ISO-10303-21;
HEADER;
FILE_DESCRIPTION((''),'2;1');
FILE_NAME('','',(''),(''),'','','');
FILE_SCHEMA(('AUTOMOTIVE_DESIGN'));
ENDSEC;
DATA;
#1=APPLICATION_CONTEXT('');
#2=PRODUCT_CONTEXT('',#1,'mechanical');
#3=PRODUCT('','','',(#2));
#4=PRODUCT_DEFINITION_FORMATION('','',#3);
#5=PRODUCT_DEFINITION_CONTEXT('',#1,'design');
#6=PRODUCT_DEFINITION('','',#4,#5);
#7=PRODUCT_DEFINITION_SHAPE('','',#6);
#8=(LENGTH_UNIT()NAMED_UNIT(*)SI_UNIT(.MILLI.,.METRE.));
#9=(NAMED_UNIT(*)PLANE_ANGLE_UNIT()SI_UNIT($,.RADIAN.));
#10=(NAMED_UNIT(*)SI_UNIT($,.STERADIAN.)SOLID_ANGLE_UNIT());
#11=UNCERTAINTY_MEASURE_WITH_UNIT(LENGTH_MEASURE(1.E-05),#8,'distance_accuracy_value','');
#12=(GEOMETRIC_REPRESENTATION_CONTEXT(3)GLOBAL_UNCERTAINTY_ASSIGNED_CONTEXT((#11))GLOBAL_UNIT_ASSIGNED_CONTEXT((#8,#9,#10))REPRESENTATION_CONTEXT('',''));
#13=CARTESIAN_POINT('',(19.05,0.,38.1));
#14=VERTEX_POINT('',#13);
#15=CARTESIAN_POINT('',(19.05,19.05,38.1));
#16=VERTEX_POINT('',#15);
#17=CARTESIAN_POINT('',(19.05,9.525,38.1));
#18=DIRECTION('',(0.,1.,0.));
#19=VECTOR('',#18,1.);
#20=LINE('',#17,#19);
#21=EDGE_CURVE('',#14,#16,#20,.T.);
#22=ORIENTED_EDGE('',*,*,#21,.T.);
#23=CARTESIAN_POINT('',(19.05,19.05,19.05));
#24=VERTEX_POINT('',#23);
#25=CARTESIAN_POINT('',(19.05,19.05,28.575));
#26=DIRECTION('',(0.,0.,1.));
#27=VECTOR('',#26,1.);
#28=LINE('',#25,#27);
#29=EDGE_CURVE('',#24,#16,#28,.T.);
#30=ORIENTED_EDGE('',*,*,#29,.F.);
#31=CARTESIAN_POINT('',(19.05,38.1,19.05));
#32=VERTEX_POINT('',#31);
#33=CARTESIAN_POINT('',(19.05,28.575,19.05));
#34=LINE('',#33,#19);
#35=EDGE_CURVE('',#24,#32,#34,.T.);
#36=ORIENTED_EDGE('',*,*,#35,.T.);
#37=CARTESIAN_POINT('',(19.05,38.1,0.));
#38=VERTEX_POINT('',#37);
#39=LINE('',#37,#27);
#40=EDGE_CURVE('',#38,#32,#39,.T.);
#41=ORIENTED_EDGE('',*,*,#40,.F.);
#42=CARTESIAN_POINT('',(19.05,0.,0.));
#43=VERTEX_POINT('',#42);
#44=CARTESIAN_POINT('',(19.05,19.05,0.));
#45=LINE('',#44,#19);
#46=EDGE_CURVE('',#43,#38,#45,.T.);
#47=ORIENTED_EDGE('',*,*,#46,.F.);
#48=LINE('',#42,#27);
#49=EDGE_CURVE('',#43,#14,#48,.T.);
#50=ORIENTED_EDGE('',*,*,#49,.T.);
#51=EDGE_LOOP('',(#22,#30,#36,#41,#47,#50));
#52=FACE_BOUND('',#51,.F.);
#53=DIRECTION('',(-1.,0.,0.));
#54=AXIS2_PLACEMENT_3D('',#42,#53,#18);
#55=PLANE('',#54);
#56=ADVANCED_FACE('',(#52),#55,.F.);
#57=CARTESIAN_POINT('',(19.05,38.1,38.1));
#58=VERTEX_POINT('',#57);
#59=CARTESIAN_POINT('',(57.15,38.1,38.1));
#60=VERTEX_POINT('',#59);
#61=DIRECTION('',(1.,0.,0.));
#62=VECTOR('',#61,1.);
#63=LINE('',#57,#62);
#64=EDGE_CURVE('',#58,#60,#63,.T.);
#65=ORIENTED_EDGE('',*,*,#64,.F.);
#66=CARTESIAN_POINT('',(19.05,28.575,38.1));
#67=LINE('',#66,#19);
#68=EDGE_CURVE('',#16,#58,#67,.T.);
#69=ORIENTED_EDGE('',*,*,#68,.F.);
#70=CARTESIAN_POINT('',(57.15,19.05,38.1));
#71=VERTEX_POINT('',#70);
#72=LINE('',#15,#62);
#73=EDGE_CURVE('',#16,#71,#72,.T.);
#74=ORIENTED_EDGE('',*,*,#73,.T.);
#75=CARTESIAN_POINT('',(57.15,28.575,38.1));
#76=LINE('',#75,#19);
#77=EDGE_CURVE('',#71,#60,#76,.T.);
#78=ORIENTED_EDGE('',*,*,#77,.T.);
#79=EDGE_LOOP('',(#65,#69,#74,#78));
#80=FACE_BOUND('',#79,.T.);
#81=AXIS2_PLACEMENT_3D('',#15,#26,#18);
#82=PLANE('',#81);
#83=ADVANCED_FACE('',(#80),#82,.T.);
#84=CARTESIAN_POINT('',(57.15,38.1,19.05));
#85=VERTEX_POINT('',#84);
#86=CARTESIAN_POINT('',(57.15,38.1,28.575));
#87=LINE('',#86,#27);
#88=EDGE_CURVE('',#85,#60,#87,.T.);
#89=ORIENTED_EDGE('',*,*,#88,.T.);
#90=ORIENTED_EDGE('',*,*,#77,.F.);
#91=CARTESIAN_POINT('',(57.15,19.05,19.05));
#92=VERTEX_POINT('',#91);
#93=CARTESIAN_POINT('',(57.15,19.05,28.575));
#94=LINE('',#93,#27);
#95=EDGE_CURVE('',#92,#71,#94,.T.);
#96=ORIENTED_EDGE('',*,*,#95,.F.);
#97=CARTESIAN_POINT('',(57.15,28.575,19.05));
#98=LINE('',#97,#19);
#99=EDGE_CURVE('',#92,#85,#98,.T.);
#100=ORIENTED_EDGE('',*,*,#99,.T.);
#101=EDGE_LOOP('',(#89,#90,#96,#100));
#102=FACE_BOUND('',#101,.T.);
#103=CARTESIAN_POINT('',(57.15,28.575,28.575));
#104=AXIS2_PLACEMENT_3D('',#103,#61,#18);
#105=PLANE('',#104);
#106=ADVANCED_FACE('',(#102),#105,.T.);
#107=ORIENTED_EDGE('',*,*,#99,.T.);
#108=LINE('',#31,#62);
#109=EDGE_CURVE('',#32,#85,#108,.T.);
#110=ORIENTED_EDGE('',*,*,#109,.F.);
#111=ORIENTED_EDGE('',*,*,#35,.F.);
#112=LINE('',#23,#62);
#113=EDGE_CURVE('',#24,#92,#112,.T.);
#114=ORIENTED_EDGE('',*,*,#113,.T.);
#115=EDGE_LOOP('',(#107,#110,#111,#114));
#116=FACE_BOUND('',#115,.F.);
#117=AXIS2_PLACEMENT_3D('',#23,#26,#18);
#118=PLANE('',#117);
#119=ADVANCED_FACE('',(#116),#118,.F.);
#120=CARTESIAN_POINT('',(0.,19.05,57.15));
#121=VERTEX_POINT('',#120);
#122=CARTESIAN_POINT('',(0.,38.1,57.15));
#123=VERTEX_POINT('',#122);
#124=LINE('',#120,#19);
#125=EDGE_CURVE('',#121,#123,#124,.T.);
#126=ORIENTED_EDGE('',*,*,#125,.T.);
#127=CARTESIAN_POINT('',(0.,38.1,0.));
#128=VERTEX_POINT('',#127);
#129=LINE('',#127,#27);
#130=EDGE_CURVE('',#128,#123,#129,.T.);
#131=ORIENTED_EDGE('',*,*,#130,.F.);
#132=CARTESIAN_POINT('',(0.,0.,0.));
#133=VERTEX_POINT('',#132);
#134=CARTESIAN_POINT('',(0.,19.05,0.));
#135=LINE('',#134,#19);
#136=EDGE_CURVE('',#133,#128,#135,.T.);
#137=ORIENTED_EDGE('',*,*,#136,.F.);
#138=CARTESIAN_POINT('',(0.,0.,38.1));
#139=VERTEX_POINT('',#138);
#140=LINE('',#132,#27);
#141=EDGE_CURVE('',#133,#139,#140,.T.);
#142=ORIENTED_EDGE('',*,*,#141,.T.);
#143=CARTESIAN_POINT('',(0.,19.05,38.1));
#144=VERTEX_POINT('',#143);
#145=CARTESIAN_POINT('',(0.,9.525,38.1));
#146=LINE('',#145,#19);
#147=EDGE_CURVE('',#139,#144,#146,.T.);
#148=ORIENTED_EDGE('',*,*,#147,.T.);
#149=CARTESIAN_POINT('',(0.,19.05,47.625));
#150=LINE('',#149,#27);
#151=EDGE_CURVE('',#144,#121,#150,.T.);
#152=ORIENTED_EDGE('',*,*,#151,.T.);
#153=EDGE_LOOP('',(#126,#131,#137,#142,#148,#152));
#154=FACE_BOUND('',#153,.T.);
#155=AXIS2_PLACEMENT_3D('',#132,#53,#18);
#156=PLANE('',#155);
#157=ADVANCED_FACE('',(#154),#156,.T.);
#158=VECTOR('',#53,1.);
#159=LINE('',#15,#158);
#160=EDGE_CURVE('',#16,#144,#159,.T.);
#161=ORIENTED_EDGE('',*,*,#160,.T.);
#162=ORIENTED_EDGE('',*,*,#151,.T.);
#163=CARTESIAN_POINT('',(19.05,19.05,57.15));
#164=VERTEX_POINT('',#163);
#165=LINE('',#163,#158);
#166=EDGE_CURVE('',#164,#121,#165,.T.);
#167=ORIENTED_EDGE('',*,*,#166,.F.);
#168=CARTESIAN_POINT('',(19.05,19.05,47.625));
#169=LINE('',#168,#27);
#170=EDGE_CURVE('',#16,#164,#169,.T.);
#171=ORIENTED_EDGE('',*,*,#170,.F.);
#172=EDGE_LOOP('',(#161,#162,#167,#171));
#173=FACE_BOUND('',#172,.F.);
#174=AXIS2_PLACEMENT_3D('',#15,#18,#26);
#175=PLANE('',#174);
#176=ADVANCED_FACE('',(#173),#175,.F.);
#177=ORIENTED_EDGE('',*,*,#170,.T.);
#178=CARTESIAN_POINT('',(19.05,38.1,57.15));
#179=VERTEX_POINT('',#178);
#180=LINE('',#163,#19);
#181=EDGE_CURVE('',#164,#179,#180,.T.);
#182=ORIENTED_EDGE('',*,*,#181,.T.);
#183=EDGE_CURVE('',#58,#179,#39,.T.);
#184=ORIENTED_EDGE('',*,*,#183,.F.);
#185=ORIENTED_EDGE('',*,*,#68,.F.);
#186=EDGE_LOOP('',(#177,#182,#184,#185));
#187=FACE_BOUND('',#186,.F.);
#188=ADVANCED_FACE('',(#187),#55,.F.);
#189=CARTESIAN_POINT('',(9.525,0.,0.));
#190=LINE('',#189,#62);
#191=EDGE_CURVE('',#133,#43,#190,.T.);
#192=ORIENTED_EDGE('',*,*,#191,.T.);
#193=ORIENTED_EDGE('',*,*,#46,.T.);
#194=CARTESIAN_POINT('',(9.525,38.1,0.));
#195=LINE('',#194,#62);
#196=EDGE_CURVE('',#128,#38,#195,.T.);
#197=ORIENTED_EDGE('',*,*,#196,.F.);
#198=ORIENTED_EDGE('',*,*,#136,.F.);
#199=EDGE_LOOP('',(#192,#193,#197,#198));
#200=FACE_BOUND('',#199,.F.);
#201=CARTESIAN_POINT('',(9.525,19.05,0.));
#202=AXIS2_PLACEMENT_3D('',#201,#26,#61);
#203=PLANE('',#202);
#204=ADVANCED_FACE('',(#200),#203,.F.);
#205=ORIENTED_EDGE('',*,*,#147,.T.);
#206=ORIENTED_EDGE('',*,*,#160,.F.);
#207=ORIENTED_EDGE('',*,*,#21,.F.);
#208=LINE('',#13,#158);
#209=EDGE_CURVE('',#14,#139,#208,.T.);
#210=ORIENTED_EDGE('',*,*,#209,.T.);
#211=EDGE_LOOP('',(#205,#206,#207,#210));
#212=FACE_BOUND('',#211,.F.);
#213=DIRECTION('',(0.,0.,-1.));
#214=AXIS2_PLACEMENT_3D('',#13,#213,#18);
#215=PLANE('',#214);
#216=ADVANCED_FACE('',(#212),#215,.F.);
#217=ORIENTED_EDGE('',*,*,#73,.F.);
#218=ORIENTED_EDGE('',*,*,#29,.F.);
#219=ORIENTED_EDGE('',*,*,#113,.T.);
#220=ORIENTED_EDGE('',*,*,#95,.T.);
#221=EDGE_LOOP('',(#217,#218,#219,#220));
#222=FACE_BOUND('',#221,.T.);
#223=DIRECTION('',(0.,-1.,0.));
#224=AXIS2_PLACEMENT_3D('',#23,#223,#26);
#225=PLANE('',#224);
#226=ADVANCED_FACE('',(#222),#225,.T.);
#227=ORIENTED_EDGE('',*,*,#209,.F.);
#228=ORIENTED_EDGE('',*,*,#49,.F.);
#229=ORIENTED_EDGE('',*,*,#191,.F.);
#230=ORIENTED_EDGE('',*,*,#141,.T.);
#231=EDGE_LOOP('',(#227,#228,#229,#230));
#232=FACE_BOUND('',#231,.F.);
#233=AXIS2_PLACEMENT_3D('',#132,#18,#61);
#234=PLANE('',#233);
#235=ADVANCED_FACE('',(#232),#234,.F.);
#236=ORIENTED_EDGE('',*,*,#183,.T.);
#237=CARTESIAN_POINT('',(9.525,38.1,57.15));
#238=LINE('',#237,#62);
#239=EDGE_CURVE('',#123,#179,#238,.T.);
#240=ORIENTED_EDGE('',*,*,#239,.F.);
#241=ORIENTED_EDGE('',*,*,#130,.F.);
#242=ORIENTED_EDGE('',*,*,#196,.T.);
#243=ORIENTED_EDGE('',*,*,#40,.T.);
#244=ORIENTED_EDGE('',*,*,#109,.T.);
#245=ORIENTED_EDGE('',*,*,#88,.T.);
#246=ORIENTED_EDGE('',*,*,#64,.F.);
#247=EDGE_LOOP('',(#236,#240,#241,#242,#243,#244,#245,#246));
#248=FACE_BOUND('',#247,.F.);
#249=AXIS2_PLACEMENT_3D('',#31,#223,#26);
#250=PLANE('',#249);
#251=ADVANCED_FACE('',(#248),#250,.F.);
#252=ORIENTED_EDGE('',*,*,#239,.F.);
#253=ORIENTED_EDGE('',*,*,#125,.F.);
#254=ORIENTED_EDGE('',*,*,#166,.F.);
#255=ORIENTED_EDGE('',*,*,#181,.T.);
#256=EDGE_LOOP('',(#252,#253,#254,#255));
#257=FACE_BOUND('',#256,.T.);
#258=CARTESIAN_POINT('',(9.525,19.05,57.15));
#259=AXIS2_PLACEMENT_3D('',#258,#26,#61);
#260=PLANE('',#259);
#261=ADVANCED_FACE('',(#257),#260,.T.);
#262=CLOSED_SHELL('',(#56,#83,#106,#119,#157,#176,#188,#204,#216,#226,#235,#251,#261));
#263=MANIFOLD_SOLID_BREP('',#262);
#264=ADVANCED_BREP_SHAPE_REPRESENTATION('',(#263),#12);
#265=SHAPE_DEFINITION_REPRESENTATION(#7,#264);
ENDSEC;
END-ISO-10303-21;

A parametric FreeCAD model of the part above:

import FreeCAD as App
import Part
import Sketcher
Q = App.Units.Quantity

doc = App.newDocument("Part")
body = doc.addObject("PartDesign::Body", "Body")

# Sketch on XY plane
sketch1 = doc.addObject("Sketcher::SketchObject", "Sketch")
body.addObject(sketch1)
sketch1.AttachmentSupport = (doc.XY_Plane, [""])
sketch1.MapMode = "FlatFace"
sketch1.addGeometry(Part.LineSegment(App.Vector(0, 38, 0), App.Vector(0, 0, 0)), False)
sketch1.addGeometry(Part.LineSegment(App.Vector(0, 0, 0), App.Vector(19, 0, 0)), False)
sketch1.addGeometry(Part.LineSegment(App.Vector(19, 0, 0), App.Vector(19, 38, 0)), False)
sketch1.addGeometry(Part.LineSegment(App.Vector(19, 38, 0), App.Vector(0, 38, 0)), False)
sketch1.addConstraint(Sketcher.Constraint("Coincident", 0, 2, 1, 1))
sketch1.addConstraint(Sketcher.Constraint("Coincident", 1, 2, 2, 1))
sketch1.addConstraint(Sketcher.Constraint("Coincident", 2, 2, 3, 1))
sketch1.addConstraint(Sketcher.Constraint("Coincident", 3, 2, 0, 1))
sketch1.addConstraint(Sketcher.Constraint("Vertical", 0))
sketch1.addConstraint(Sketcher.Constraint("Horizontal", 1))
sketch1.addConstraint(Sketcher.Constraint("Vertical", 2))
sketch1.addConstraint(Sketcher.Constraint("Horizontal", 3))
sketch1.addConstraint(Sketcher.Constraint("Coincident", 0, 2, -1, 1))
sketch1.addConstraint(Sketcher.Constraint("DistanceY", 0, 2, 0, 1, Q("1.5 in")))
sketch1.addConstraint(Sketcher.Constraint("DistanceX", 1, 1, 1, 2, Q("0.75 in")))
pad1 = doc.addObject("PartDesign::Pad", "Pad")
body.addObject(pad1)
pad1.Profile = sketch1
pad1.Length = Q("2.25 in")

# Sketch on YZ plane
sketch2 = doc.addObject("Sketcher::SketchObject", "Sketch001")
body.addObject(sketch2)
sketch2.AttachmentSupport = (doc.YZ_Plane, [""])
sketch2.MapMode = "FlatFace"
sketch2.AttachmentOffset = App.Placement(App.Vector(0, 0, 0.75 * 25.4), App.Rotation())
sketch2.addGeometry(Part.LineSegment(App.Vector(0, 57, 0), App.Vector(0, 38, 0)), False)
sketch2.addGeometry(Part.LineSegment(App.Vector(0, 38, 0), App.Vector(19, 38, 0)), False)
sketch2.addGeometry(Part.LineSegment(App.Vector(19, 38, 0), App.Vector(19, 57, 0)), False)
sketch2.addGeometry(Part.LineSegment(App.Vector(19, 57, 0), App.Vector(0, 57, 0)), False)
sketch2.addConstraint(Sketcher.Constraint("Coincident", 0, 2, 1, 1))
sketch2.addConstraint(Sketcher.Constraint("Coincident", 1, 2, 2, 1))
sketch2.addConstraint(Sketcher.Constraint("Coincident", 2, 2, 3, 1))
sketch2.addConstraint(Sketcher.Constraint("Coincident", 3, 2, 0, 1))
sketch2.addConstraint(Sketcher.Constraint("Vertical", 0))
sketch2.addConstraint(Sketcher.Constraint("Horizontal", 1))
sketch2.addConstraint(Sketcher.Constraint("Vertical", 2))
sketch2.addConstraint(Sketcher.Constraint("Horizontal", 3))
sketch2.addConstraint(Sketcher.Constraint("PointOnObject", 0, 2, -2))
sketch2.addConstraint(Sketcher.Constraint("Equal", 3, 0))
sketch2.addConstraint(Sketcher.Constraint("DistanceX", 1, 1, 1, 2, Q("0.75 in")))
sketch2.addConstraint(Sketcher.Constraint("DistanceY", -1, 1, 0, 2, Q("1.5 in")))
pocket1 = doc.addObject("PartDesign::Pocket", "Pocket")
body.addObject(pocket1)
pocket1.Profile = sketch2
pocket1.Length = Q("0.75 in")

# Sketch on YZ plane
sketch3 = doc.addObject("Sketcher::SketchObject", "Sketch002")
body.addObject(sketch3)
sketch3.AttachmentSupport = (doc.YZ_Plane, [""])
sketch3.MapMode = "FlatFace"
sketch3.AttachmentOffset = App.Placement(App.Vector(0, 0, 0.75 * 25.4), App.Rotation())
sketch3.addGeometry(Part.LineSegment(App.Vector(19, 38, 0), App.Vector(19, 19, 0)), False)
sketch3.addGeometry(Part.LineSegment(App.Vector(19, 19, 0), App.Vector(38, 19, 0)), False)
sketch3.addGeometry(Part.LineSegment(App.Vector(38, 19, 0), App.Vector(38, 38, 0)), False)
sketch3.addGeometry(Part.LineSegment(App.Vector(38, 38, 0), App.Vector(19, 38, 0)), False)
sketch3.addConstraint(Sketcher.Constraint("Coincident", 0, 2, 1, 1))
sketch3.addConstraint(Sketcher.Constraint("Coincident", 1, 2, 2, 1))
sketch3.addConstraint(Sketcher.Constraint("Coincident", 2, 2, 3, 1))
sketch3.addConstraint(Sketcher.Constraint("Coincident", 3, 2, 0, 1))
sketch3.addConstraint(Sketcher.Constraint("Vertical", 0))
sketch3.addConstraint(Sketcher.Constraint("Horizontal", 1))
sketch3.addConstraint(Sketcher.Constraint("Vertical", 2))
sketch3.addConstraint(Sketcher.Constraint("Horizontal", 3))
sketch3.addConstraint(Sketcher.Constraint("Equal", 3, 0))
sketch3.addConstraint(Sketcher.Constraint("DistanceX", 1, 1, 1, 2, Q("0.75 in")))
sketch3.addConstraint(Sketcher.Constraint("DistanceX", -1, 1, 1, 2, Q("1.5 in")))
sketch3.addConstraint(Sketcher.Constraint("DistanceY", -1, 1, 2, 2, Q("1.5 in")))
pad2 = doc.addObject("PartDesign::Pad", "Pad001")
body.addObject(pad2)
pad2.Profile = sketch3
pad2.Length = Q("1.5 in")

doc.recompute()
